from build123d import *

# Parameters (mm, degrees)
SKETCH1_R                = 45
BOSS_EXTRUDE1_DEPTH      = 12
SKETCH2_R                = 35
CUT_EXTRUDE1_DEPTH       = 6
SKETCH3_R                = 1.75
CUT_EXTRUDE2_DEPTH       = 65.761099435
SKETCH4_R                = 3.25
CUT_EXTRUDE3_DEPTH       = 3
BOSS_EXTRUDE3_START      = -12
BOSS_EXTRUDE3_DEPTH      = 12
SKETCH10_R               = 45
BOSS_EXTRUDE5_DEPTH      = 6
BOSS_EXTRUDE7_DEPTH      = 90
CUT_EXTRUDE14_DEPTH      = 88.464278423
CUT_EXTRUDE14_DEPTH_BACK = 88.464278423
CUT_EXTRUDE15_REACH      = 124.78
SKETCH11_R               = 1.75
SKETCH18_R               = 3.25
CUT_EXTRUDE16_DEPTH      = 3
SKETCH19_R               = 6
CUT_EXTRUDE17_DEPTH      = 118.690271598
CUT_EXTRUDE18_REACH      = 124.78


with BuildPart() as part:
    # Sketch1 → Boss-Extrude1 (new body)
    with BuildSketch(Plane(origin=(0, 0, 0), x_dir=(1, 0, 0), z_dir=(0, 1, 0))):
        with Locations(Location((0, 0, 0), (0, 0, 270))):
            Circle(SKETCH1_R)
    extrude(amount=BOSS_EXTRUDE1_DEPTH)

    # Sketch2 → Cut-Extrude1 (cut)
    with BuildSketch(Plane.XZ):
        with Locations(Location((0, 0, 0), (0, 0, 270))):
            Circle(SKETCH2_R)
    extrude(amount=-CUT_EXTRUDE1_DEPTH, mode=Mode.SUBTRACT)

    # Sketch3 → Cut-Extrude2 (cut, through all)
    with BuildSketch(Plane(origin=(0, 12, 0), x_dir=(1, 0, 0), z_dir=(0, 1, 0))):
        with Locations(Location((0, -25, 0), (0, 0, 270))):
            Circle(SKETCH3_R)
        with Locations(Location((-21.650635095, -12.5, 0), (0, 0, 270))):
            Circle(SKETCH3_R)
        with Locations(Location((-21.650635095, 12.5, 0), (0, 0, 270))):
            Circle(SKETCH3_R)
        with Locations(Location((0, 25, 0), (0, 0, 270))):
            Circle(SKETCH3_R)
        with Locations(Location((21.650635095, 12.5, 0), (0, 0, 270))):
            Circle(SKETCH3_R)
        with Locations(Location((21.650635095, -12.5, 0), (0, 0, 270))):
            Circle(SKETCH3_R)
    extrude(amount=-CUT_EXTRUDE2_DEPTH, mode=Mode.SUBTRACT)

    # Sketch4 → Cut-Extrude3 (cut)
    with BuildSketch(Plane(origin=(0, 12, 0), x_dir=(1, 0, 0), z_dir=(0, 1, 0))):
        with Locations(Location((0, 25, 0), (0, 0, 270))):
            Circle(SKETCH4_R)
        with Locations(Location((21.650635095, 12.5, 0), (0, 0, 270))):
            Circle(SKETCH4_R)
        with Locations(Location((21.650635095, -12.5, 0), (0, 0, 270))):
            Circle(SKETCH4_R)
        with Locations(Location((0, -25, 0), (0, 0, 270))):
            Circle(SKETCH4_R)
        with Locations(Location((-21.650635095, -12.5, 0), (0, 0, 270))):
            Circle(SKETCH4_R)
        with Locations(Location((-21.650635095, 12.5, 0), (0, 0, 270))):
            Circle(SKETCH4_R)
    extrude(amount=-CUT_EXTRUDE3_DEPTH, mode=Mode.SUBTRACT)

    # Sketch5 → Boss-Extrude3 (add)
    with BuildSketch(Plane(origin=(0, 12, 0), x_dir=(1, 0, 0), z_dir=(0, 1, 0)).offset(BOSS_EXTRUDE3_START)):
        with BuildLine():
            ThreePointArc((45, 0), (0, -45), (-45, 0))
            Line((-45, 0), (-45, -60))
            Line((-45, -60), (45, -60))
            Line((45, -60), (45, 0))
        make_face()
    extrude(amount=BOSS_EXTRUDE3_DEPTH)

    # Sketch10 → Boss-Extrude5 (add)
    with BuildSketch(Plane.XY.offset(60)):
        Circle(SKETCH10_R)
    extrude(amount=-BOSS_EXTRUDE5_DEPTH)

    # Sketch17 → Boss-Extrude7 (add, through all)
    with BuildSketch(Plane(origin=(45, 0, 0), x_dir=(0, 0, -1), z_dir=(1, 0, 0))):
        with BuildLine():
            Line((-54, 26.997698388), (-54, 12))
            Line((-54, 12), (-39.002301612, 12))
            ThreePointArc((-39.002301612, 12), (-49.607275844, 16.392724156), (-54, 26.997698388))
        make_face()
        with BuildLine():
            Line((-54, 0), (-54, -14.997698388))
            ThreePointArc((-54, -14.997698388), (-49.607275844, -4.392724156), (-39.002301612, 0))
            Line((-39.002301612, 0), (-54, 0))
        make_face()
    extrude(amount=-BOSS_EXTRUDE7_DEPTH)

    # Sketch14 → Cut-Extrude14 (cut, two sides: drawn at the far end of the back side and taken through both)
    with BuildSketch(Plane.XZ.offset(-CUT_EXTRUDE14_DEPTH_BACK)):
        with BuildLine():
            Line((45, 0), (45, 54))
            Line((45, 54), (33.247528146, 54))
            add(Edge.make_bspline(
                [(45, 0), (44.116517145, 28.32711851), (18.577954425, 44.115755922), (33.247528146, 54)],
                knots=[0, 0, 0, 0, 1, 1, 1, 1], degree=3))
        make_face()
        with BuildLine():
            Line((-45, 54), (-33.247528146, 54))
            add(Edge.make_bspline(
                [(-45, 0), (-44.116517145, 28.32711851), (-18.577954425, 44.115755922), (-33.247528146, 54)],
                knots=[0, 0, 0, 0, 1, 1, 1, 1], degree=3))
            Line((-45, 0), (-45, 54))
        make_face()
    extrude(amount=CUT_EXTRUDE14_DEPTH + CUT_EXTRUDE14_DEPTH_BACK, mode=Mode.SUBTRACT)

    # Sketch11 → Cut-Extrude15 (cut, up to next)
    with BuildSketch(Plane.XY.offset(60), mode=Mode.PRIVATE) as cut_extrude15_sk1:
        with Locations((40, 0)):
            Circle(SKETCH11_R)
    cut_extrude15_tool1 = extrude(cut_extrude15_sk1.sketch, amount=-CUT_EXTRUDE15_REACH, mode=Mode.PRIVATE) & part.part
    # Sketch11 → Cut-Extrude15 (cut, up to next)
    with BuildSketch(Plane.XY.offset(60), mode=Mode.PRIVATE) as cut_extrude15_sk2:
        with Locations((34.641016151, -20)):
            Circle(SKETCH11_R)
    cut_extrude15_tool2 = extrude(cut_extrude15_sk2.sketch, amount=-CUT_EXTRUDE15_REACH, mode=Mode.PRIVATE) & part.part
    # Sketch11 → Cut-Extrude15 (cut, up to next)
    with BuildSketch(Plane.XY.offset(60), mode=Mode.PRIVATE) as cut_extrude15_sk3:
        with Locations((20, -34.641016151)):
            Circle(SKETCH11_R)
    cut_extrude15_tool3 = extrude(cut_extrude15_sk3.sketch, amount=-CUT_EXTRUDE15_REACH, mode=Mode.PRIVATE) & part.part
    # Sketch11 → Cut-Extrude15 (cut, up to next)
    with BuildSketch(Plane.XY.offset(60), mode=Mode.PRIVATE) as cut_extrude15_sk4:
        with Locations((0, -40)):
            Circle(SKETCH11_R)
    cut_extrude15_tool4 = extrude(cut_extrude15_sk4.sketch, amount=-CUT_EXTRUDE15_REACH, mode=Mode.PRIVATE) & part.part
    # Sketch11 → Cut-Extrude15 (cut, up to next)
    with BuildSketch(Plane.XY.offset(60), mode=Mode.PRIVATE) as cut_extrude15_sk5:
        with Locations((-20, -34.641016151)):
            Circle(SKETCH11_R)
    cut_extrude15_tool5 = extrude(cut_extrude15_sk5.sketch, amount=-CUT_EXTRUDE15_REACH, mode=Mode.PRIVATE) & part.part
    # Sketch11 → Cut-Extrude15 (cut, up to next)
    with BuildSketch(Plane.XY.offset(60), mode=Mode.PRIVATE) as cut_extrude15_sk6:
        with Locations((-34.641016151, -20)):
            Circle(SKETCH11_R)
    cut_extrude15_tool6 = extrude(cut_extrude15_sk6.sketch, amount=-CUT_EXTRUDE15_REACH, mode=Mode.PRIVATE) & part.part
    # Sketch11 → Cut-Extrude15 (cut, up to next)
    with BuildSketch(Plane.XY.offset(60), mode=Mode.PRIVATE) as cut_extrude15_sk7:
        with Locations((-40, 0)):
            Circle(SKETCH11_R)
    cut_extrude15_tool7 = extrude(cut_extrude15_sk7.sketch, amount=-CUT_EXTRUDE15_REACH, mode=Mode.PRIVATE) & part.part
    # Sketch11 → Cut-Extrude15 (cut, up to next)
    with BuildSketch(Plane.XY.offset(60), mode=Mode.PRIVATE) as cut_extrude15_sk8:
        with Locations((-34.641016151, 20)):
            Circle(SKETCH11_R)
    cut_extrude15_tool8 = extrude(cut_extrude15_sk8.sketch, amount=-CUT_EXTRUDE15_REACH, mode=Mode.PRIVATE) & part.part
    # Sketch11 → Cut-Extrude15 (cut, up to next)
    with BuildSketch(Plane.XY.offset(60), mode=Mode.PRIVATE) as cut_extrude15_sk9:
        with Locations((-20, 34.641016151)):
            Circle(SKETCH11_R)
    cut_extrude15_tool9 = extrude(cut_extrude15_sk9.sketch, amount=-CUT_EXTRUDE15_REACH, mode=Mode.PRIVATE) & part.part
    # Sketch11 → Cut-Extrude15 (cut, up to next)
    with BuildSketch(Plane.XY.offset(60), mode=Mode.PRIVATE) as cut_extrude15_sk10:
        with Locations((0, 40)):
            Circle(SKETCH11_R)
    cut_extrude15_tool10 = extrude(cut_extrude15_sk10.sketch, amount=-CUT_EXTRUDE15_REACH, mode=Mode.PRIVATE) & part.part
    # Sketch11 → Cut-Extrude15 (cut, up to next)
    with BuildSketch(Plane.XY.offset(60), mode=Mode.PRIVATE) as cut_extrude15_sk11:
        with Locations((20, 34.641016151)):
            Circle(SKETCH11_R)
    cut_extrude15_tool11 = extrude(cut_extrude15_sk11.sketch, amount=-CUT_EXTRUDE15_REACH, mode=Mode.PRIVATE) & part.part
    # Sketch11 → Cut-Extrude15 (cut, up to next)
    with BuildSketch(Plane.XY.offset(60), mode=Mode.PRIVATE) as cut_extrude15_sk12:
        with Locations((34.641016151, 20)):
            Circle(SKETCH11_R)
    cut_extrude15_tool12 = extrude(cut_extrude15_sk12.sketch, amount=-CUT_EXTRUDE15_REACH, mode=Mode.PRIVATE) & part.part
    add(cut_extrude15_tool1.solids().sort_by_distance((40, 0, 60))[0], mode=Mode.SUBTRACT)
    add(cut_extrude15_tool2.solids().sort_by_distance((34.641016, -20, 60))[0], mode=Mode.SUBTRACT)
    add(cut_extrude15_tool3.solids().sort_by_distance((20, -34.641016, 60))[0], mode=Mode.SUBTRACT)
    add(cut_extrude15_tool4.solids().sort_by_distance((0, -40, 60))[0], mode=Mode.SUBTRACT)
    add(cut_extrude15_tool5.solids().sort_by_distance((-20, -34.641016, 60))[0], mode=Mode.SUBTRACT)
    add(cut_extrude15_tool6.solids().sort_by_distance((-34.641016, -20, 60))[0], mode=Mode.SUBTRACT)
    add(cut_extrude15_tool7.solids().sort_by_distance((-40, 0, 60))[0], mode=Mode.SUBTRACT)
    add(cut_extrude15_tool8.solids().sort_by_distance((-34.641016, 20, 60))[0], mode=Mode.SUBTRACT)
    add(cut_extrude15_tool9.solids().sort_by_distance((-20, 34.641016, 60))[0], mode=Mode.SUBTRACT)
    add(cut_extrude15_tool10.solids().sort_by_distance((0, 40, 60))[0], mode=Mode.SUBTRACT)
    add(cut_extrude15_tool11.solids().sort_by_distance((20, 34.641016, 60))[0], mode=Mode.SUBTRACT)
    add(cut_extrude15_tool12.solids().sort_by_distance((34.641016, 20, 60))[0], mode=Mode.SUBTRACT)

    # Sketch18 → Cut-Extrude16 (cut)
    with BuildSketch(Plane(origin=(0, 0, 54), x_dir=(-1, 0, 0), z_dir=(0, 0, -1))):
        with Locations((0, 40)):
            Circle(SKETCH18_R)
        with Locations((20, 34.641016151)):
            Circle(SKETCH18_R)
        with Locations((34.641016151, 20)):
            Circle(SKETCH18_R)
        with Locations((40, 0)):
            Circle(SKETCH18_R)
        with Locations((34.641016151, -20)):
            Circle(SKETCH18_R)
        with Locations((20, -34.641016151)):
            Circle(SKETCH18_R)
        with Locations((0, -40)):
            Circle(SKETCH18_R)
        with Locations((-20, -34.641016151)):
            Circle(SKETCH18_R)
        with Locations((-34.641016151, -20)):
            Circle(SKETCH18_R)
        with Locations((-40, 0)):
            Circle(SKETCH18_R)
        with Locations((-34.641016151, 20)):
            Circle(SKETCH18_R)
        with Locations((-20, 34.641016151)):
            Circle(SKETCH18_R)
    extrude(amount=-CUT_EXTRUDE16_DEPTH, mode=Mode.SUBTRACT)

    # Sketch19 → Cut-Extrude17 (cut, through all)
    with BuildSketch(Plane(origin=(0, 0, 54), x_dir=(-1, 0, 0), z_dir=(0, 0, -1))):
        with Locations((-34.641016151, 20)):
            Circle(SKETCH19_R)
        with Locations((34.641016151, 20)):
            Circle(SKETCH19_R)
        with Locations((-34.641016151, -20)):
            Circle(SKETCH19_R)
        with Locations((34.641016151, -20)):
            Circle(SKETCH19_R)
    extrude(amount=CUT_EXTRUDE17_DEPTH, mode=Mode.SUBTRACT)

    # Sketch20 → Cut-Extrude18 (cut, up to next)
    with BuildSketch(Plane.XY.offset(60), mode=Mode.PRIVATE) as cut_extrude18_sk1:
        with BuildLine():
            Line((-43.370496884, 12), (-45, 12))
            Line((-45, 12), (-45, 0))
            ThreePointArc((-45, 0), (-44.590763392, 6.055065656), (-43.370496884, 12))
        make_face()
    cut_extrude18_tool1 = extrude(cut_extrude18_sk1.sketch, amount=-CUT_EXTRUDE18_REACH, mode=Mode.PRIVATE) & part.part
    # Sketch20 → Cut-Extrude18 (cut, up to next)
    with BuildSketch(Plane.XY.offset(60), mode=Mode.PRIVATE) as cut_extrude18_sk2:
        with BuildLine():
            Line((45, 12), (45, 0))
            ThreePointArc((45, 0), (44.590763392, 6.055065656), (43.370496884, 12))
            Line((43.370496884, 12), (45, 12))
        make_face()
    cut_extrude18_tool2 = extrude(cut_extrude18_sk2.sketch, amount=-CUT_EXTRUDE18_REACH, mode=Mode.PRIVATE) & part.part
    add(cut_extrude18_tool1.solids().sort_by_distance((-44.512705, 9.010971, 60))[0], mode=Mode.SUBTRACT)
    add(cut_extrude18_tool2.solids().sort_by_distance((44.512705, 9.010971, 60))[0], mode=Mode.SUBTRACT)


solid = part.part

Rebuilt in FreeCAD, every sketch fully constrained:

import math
import FreeCAD as App
import Part
import Sketcher
Q = App.Units.Quantity

doc = App.newDocument("Part")
params = doc.addObject("Spreadsheet::Sheet", "Params")
for row, (alias, value) in enumerate([
    ("sketch1_diameter", "90 mm"),
    ("pad1_length", "12 mm"),
    ("sketch2_diameter", "70 mm"),
    ("pocket1_length", "6 mm"),
    ("sketch3_diameter", "3.5 mm"),
    ("sketch4_diameter", "6.5 mm"),
    ("pocket3_length", "3 mm"),
    ("sketch5_radius", "45 mm"),
    ("sketch5_height", "60 mm"),
    ("pad2_length", "12 mm"),
    ("sketch6_diameter", "90 mm"),
    ("pad3_length", "6 mm"),
    ("sketch9_diameter", "3.5 mm"),
    ("sketch10_diameter", "3.5 mm"),
    ("sketch11_diameter", "3.5 mm"),
    ("sketch12_diameter", "3.5 mm"),
    ("sketch13_diameter", "3.5 mm"),
    ("sketch14_diameter", "3.5 mm"),
    ("sketch15_diameter", "3.5 mm"),
    ("sketch16_diameter", "3.5 mm"),
    ("sketch17_diameter", "3.5 mm"),
    ("sketch18_diameter", "3.5 mm"),
    ("sketch19_diameter", "3.5 mm"),
    ("sketch20_diameter", "3.5 mm"),
    ("sketch21_diameter", "6.5 mm"),
    ("pocket17_length", "3 mm"),
    ("sketch22_diameter", "12 mm"),
    ("sketch23_radius", "45 mm"),
    ("sketch23_height", "12 mm"),
    ("sketch24_radius", "45 mm"),
    ("sketch24_height", "12 mm"),
], start=1):
    params.set(f"A{row}", alias)
    params.set(f"B{row}", "=" + value)
    params.setAlias(f"B{row}", alias)

body = doc.addObject("PartDesign::Body", "Body")

# Sketch on XZ plane
sketch1 = body.newObject("Sketcher::SketchObject", "Sketch")
sketch1.AttachmentSupport = (doc.getObject("XZ_Plane"), [""])
sketch1.MapMode = "FlatFace"
sketch1.addGeometry(Part.Circle(App.Vector(0, 0, 0), App.Vector(0, 0, 1), 45), False)
sketch1.addConstraint(Sketcher.Constraint("Coincident", 0, 3, -1, 1))
sketch1.addConstraint(Sketcher.Constraint("Diameter", 0, Q("90 mm")))
sketch1.setExpression("Constraints[1]", "Params.sketch1_diameter")
pad1 = body.newObject("PartDesign::Pad", "Pad")
pad1.Profile = sketch1
pad1.setExpression("Length", "Params.pad1_length")
pad1.Reversed = True

# Sketch on XZ plane
sketch2 = body.newObject("Sketcher::SketchObject", "Sketch001")
sketch2.AttachmentSupport = (doc.getObject("XZ_Plane"), [""])
sketch2.MapMode = "FlatFace"
sketch2.addGeometry(Part.Circle(App.Vector(0, 0, 0), App.Vector(0, 0, 1), 35), False)
sketch2.addConstraint(Sketcher.Constraint("Coincident", 0, 3, -1, 1))
sketch2.addConstraint(Sketcher.Constraint("Diameter", 0, Q("70 mm")))
sketch2.setExpression("Constraints[1]", "Params.sketch2_diameter")
pocket1 = body.newObject("PartDesign::Pocket", "Pocket")
pocket1.Profile = sketch2
pocket1.setExpression("Length", "Params.pocket1_length")

# Sketch on XZ plane
sketch3 = body.newObject("Sketcher::SketchObject", "Sketch002")
sketch3.AttachmentSupport = (doc.getObject("XZ_Plane"), [""])
sketch3.MapMode = "FlatFace"
sketch3.AttachmentOffset = App.Placement(App.Vector(0, 0, -12), App.Rotation())
sketch3.addGeometry(Part.Circle(App.Vector(0, 25, 0), App.Vector(0, 0, 1), 1.75), False)
sketch3.addGeometry(Part.Circle(App.Vector(-21.650635, 12.5, 0), App.Vector(0, 0, 1), 1.75), False)
sketch3.addGeometry(Part.Circle(App.Vector(-21.650635, -12.5, 0), App.Vector(0, 0, 1), 1.75), False)
sketch3.addGeometry(Part.Circle(App.Vector(0, -25, 0), App.Vector(0, 0, 1), 1.75), False)
sketch3.addGeometry(Part.Circle(App.Vector(21.650635, -12.5, 0), App.Vector(0, 0, 1), 1.75), False)
sketch3.addGeometry(Part.Circle(App.Vector(21.650635, 12.5, 0), App.Vector(0, 0, 1), 1.75), False)
sketch3.addConstraint(Sketcher.Constraint("Equal", 0, 1))
sketch3.addConstraint(Sketcher.Constraint("Equal", 1, 2))
sketch3.addConstraint(Sketcher.Constraint("Equal", 2, 3))
sketch3.addConstraint(Sketcher.Constraint("Equal", 3, 4))
sketch3.addConstraint(Sketcher.Constraint("Equal", 4, 5))
sketch3.addConstraint(Sketcher.Constraint("Symmetric", 0, 3, 3, 3, -1, 1))
sketch3.addConstraint(Sketcher.Constraint("Symmetric", 1, 3, 4, 3, -1, 1))
sketch3.addConstraint(Sketcher.Constraint("Symmetric", 2, 3, 5, 3, -1, 1))
sketch3.addConstraint(Sketcher.Constraint("Symmetric", 2, 3, 4, 3, -2))
sketch3.addConstraint(Sketcher.Constraint("PointOnObject", 0, 3, -2))
sketch3.addConstraint(Sketcher.Constraint("Diameter", 0, Q("3.5 mm")))
sketch3.addConstraint(Sketcher.Constraint("DistanceY", -1, 1, 0, 3, Q("25 mm")))
sketch3.addConstraint(Sketcher.Constraint("DistanceY", 2, 3, 1, 3, Q("25 mm")))
sketch3.addConstraint(Sketcher.Constraint("DistanceX", 2, 3, 4, 3, Q("43.30127 mm")))
sketch3.setExpression("Constraints[10]", "Params.sketch3_diameter")
pocket2 = body.newObject("PartDesign::Pocket", "Pocket001")
pocket2.Profile = sketch3
pocket2.Type = "ThroughAll"
pocket2.Reversed = True

# Sketch on XZ plane
sketch4 = body.newObject("Sketcher::SketchObject", "Sketch003")
sketch4.AttachmentSupport = (doc.getObject("XZ_Plane"), [""])
sketch4.MapMode = "FlatFace"
sketch4.AttachmentOffset = App.Placement(App.Vector(0, 0, -12), App.Rotation())
sketch4.addGeometry(Part.Circle(App.Vector(0, -25, 0), App.Vector(0, 0, 1), 3.25), False)
sketch4.addGeometry(Part.Circle(App.Vector(21.650635, -12.5, 0), App.Vector(0, 0, 1), 3.25), False)
sketch4.addGeometry(Part.Circle(App.Vector(21.650635, 12.5, 0), App.Vector(0, 0, 1), 3.25), False)
sketch4.addGeometry(Part.Circle(App.Vector(0, 25, 0), App.Vector(0, 0, 1), 3.25), False)
sketch4.addGeometry(Part.Circle(App.Vector(-21.650635, 12.5, 0), App.Vector(0, 0, 1), 3.25), False)
sketch4.addGeometry(Part.Circle(App.Vector(-21.650635, -12.5, 0), App.Vector(0, 0, 1), 3.25), False)
sketch4.addConstraint(Sketcher.Constraint("Equal", 0, 1))
sketch4.addConstraint(Sketcher.Constraint("Equal", 1, 2))
sketch4.addConstraint(Sketcher.Constraint("Equal", 2, 3))
sketch4.addConstraint(Sketcher.Constraint("Equal", 3, 4))
sketch4.addConstraint(Sketcher.Constraint("Equal", 4, 5))
sketch4.addConstraint(Sketcher.Constraint("Symmetric", 0, 3, 3, 3, -1, 1))
sketch4.addConstraint(Sketcher.Constraint("Symmetric", 1, 3, 4, 3, -1, 1))
sketch4.addConstraint(Sketcher.Constraint("Symmetric", 2, 3, 5, 3, -1, 1))
sketch4.addConstraint(Sketcher.Constraint("Symmetric", 2, 3, 4, 3, -2))
sketch4.addConstraint(Sketcher.Constraint("PointOnObject", 0, 3, -2))
sketch4.addConstraint(Sketcher.Constraint("Diameter", 0, Q("6.5 mm")))
sketch4.addConstraint(Sketcher.Constraint("DistanceY", 0, 3, -1, 1, Q("25 mm")))
sketch4.addConstraint(Sketcher.Constraint("DistanceY", 1, 3, 2, 3, Q("25 mm")))
sketch4.addConstraint(Sketcher.Constraint("DistanceX", 4, 3, 2, 3, Q("43.30127 mm")))
sketch4.setExpression("Constraints[10]", "Params.sketch4_diameter")
pocket3 = body.newObject("PartDesign::Pocket", "Pocket002")
pocket3.Profile = sketch4
pocket3.setExpression("Length", "Params.pocket3_length")
pocket3.Reversed = True

# Sketch on XZ plane
sketch5 = body.newObject("Sketcher::SketchObject", "Sketch004")
sketch5.AttachmentSupport = (doc.getObject("XZ_Plane"), [""])
sketch5.MapMode = "FlatFace"
sketch5.addGeometry(Part.ArcOfCircle(Part.Circle(App.Vector(0, 0, 0), App.Vector(0, 0, 1), 45), math.radians(0), math.radians(180)), False)
sketch5.addGeometry(Part.LineSegment(App.Vector(-45, 0, 0), App.Vector(-45, 60, 0)), False)
sketch5.addGeometry(Part.LineSegment(App.Vector(-45, 60, 0), App.Vector(45, 60, 0)), False)
sketch5.addGeometry(Part.LineSegment(App.Vector(45, 60, 0), App.Vector(45, 0, 0)), False)
sketch5.addConstraint(Sketcher.Constraint("Tangent", 0, 2, 1, 1))
sketch5.addConstraint(Sketcher.Constraint("Coincident", 1, 2, 2, 1))
sketch5.addConstraint(Sketcher.Constraint("Coincident", 2, 2, 3, 1))
sketch5.addConstraint(Sketcher.Constraint("Tangent", 3, 2, 0, 1))
sketch5.addConstraint(Sketcher.Constraint("Vertical", 1))
sketch5.addConstraint(Sketcher.Constraint("Horizontal", 2))
sketch5.addConstraint(Sketcher.Constraint("Vertical", 3))
sketch5.addConstraint(Sketcher.Constraint("Coincident", 0, 3, -1, 1))
sketch5.addConstraint(Sketcher.Constraint("Radius", 0, Q("45 mm")))
sketch5.addConstraint(Sketcher.Constraint("DistanceY", 1, 1, 1, 2, Q("60 mm")))
sketch5.setExpression("Constraints[8]", "Params.sketch5_radius")
sketch5.setExpression("Constraints[9]", "Params.sketch5_height")
pad2 = body.newObject("PartDesign::Pad", "Pad001")
pad2.Profile = sketch5
pad2.setExpression("Length", "Params.pad2_length")
pad2.Reversed = True

# Sketch on XY plane
sketch6 = body.newObject("Sketcher::SketchObject", "Sketch005")
sketch6.AttachmentSupport = (doc.getObject("XY_Plane"), [""])
sketch6.MapMode = "FlatFace"
sketch6.AttachmentOffset = App.Placement(App.Vector(0, 0, 60), App.Rotation())
sketch6.addGeometry(Part.Circle(App.Vector(0, 0, 0), App.Vector(0, 0, 1), 45), False)
sketch6.addConstraint(Sketcher.Constraint("Coincident", 0, 3, -1, 1))
sketch6.addConstraint(Sketcher.Constraint("Diameter", 0, Q("90 mm")))
sketch6.setExpression("Constraints[1]", "Params.sketch6_diameter")
pad3 = body.newObject("PartDesign::Pad", "Pad002")
pad3.Profile = sketch6
pad3.setExpression("Length", "Params.pad3_length")
pad3.Reversed = True

# Sketch on YZ plane
sketch7 = body.newObject("Sketcher::SketchObject", "Sketch006")
sketch7.AttachmentSupport = (doc.getObject("YZ_Plane"), [""])
sketch7.MapMode = "FlatFace"
sketch7.AttachmentOffset = App.Placement(App.Vector(0, 0, 45), App.Rotation())
sketch7.addGeometry(Part.LineSegment(App.Vector(26.997698, 54, 0), App.Vector(12, 54, 0)), False)
sketch7.addGeometry(Part.LineSegment(App.Vector(12, 54, 0), App.Vector(12, 39.002302, 0)), False)
sketch7.addGeometry(Part.ArcOfCircle(Part.Circle(App.Vector(26.997698, 39.002302, 0), App.Vector(0, 0, 1), 14.997698), math.radians(90), math.radians(180)), False)
sketch7.addGeometry(Part.LineSegment(App.Vector(0, 54, 0), App.Vector(-14.997698, 54, 0)), False)
sketch7.addGeometry(Part.ArcOfCircle(Part.Circle(App.Vector(-14.997698, 39.002302, 0), App.Vector(0, 0, 1), 14.997698), math.radians(0), math.radians(90)), False)
sketch7.addGeometry(Part.LineSegment(App.Vector(0, 39.002302, 0), App.Vector(0, 54, 0)), False)
sketch7.addConstraint(Sketcher.Constraint("Coincident", 0, 2, 1, 1))
sketch7.addConstraint(Sketcher.Constraint("Tangent", 1, 2, 2, 2))
sketch7.addConstraint(Sketcher.Constraint("Tangent", 2, 1, 0, 1))
sketch7.addConstraint(Sketcher.Constraint("Tangent", 3, 2, 4, 2))
sketch7.addConstraint(Sketcher.Constraint("Tangent", 4, 1, 5, 1))
sketch7.addConstraint(Sketcher.Constraint("Coincident", 5, 2, 3, 1))
sketch7.addConstraint(Sketcher.Constraint("Horizontal", 0))
sketch7.addConstraint(Sketcher.Constraint("Vertical", 1))
sketch7.addConstraint(Sketcher.Constraint("Horizontal", 3))
sketch7.addConstraint(Sketcher.Constraint("Vertical", 5))
sketch7.addConstraint(Sketcher.Constraint("Equal", 2, 4))
sketch7.addConstraint(Sketcher.Constraint("PointOnObject", 4, 1, -2))
sketch7.addConstraint(Sketcher.Constraint("Horizontal", 2, 3, 4, 3))
sketch7.addConstraint(Sketcher.Constraint("DistanceX", -1, 1, 0, 2, Q("12 mm")))
sketch7.addConstraint(Sketcher.Constraint("DistanceY", -1, 1, 0, 2, Q("54 mm")))
sketch7.addConstraint(Sketcher.Constraint("Radius", 2, Q("14.997698 mm")))
pad4 = body.newObject("PartDesign::Pad", "Pad003")
pad4.Profile = sketch7
pad4.Type = "UpToLast"
pad4.Reversed = True

# Sketch on XZ plane
sketch8 = body.newObject("Sketcher::SketchObject", "Sketch007")
sketch8.AttachmentSupport = (doc.getObject("XZ_Plane"), [""])
sketch8.MapMode = "FlatFace"
sketch8.addGeometry(Part.LineSegment(App.Vector(45, 0, 0), App.Vector(45, 54, 0)), False)
sketch8.addGeometry(Part.LineSegment(App.Vector(45, 54, 0), App.Vector(33.247528, 54, 0)), False)
sketch8.addGeometry(Part.BSplineCurve([App.Vector(45, 0, 0), App.Vector(44.116517, 28.327119, 0), App.Vector(18.577954, 44.115756, 0), App.Vector(33.247528, 54, 0)], [4, 4], [0, 1], False, 3, [1, 1, 1, 1], False), False)
sketch8.addGeometry(Part.LineSegment(App.Vector(-33.247528, 54, 0), App.Vector(-45, 54, 0)), False)
sketch8.addGeometry(Part.LineSegment(App.Vector(-45, 54, 0), App.Vector(-45, 0, 0)), False)
sketch8.addGeometry(Part.BSplineCurve([App.Vector(-45, 0, 0), App.Vector(-44.116517, 28.327119, 0), App.Vector(-18.577954, 44.115756, 0), App.Vector(-33.247528, 54, 0)], [4, 4], [0, 1], False, 3, [1, 1, 1, 1], False), False)
sketch8.addConstraint(Sketcher.Constraint("Block", 2))
sketch8.addConstraint(Sketcher.Constraint("Block", 5))
sketch8.addConstraint(Sketcher.Constraint("Coincident", 0, 2, 1, 1))
sketch8.addConstraint(Sketcher.Constraint("Coincident", 1, 2, 2, 2))
sketch8.addConstraint(Sketcher.Constraint("Coincident", 2, 1, 0, 1))
sketch8.addConstraint(Sketcher.Constraint("Coincident", 3, 2, 4, 1))
sketch8.addConstraint(Sketcher.Constraint("Coincident", 4, 2, 5, 1))
sketch8.addConstraint(Sketcher.Constraint("Coincident", 5, 2, 3, 1))
sketch8.addConstraint(Sketcher.Constraint("Vertical", 0))
sketch8.addConstraint(Sketcher.Constraint("Horizontal", 1))
sketch8.addConstraint(Sketcher.Constraint("Horizontal", 3))
sketch8.addConstraint(Sketcher.Constraint("Vertical", 4))
pocket4 = body.newObject("PartDesign::Pocket", "Pocket003")
pocket4.Profile = sketch8
pocket4.Type = "ThroughAll"
pocket4.Midplane = True

# Sketch on XY plane
sketch9 = body.newObject("Sketcher::SketchObject", "Sketch008")
sketch9.AttachmentSupport = (doc.getObject("XY_Plane"), [""])
sketch9.MapMode = "FlatFace"
sketch9.AttachmentOffset = App.Placement(App.Vector(0, 0, 60), App.Rotation())
sketch9.addGeometry(Part.Circle(App.Vector(40, 0, 0), App.Vector(0, 0, 1), 1.75), False)
sketch9.addConstraint(Sketcher.Constraint("PointOnObject", 0, 3, -1))
sketch9.addConstraint(Sketcher.Constraint("Diameter", 0, Q("3.5 mm")))
sketch9.addConstraint(Sketcher.Constraint("DistanceX", -1, 1, 0, 3, Q("40 mm")))
sketch9.setExpression("Constraints[1]", "Params.sketch9_diameter")
pocket5 = body.newObject("PartDesign::Pocket", "Pocket004")
pocket5.Profile = sketch9
pocket5.Type = "UpToFirst"

# Sketch on XY plane
sketch10 = body.newObject("Sketcher::SketchObject", "Sketch009")
sketch10.AttachmentSupport = (doc.getObject("XY_Plane"), [""])
sketch10.MapMode = "FlatFace"
sketch10.AttachmentOffset = App.Placement(App.Vector(0, 0, 60), App.Rotation())
sketch10.addGeometry(Part.Circle(App.Vector(34.641016, -20, 0), App.Vector(0, 0, 1), 1.75), False)
sketch10.addConstraint(Sketcher.Constraint("Diameter", 0, Q("3.5 mm")))
sketch10.addConstraint(Sketcher.Constraint("DistanceY", 0, 3, -1, 1, Q("20 mm")))
sketch10.addConstraint(Sketcher.Constraint("DistanceX", -1, 1, 0, 3, Q("34.641016 mm")))
sketch10.setExpression("Constraints[0]", "Params.sketch10_diameter")
pocket6 = body.newObject("PartDesign::Pocket", "Pocket005")
pocket6.Profile = sketch10
pocket6.Type = "UpToFirst"

# Sketch on XY plane
sketch11 = body.newObject("Sketcher::SketchObject", "Sketch010")
sketch11.AttachmentSupport = (doc.getObject("XY_Plane"), [""])
sketch11.MapMode = "FlatFace"
sketch11.AttachmentOffset = App.Placement(App.Vector(0, 0, 60), App.Rotation())
sketch11.addGeometry(Part.Circle(App.Vector(20, -34.641016, 0), App.Vector(0, 0, 1), 1.75), False)
sketch11.addConstraint(Sketcher.Constraint("Diameter", 0, Q("3.5 mm")))
sketch11.addConstraint(Sketcher.Constraint("DistanceX", -1, 1, 0, 3, Q("20 mm")))
sketch11.addConstraint(Sketcher.Constraint("DistanceY", 0, 3, -1, 1, Q("34.641016 mm")))
sketch11.setExpression("Constraints[0]", "Params.sketch11_diameter")
pocket7 = body.newObject("PartDesign::Pocket", "Pocket006")
pocket7.Profile = sketch11
pocket7.Type = "UpToFirst"

# Sketch on XY plane
sketch12 = body.newObject("Sketcher::SketchObject", "Sketch011")
sketch12.AttachmentSupport = (doc.getObject("XY_Plane"), [""])
sketch12.MapMode = "FlatFace"
sketch12.AttachmentOffset = App.Placement(App.Vector(0, 0, 60), App.Rotation())
sketch12.addGeometry(Part.Circle(App.Vector(0, -40, 0), App.Vector(0, 0, 1), 1.75), False)
sketch12.addConstraint(Sketcher.Constraint("PointOnObject", 0, 3, -2))
sketch12.addConstraint(Sketcher.Constraint("Diameter", 0, Q("3.5 mm")))
sketch12.addConstraint(Sketcher.Constraint("DistanceY", 0, 3, -1, 1, Q("40 mm")))
sketch12.setExpression("Constraints[1]", "Params.sketch12_diameter")
pocket8 = body.newObject("PartDesign::Pocket", "Pocket007")
pocket8.Profile = sketch12
pocket8.Type = "UpToFirst"

# Sketch on XY plane
sketch13 = body.newObject("Sketcher::SketchObject", "Sketch012")
sketch13.AttachmentSupport = (doc.getObject("XY_Plane"), [""])
sketch13.MapMode = "FlatFace"
sketch13.AttachmentOffset = App.Placement(App.Vector(0, 0, 60), App.Rotation())
sketch13.addGeometry(Part.Circle(App.Vector(-20, -34.641016, 0), App.Vector(0, 0, 1), 1.75), False)
sketch13.addConstraint(Sketcher.Constraint("Diameter", 0, Q("3.5 mm")))
sketch13.addConstraint(Sketcher.Constraint("DistanceX", 0, 3, -1, 1, Q("20 mm")))
sketch13.addConstraint(Sketcher.Constraint("DistanceY", 0, 3, -1, 1, Q("34.641016 mm")))
sketch13.setExpression("Constraints[0]", "Params.sketch13_diameter")
pocket9 = body.newObject("PartDesign::Pocket", "Pocket008")
pocket9.Profile = sketch13
pocket9.Type = "UpToFirst"

# Sketch on XY plane
sketch14 = body.newObject("Sketcher::SketchObject", "Sketch013")
sketch14.AttachmentSupport = (doc.getObject("XY_Plane"), [""])
sketch14.MapMode = "FlatFace"
sketch14.AttachmentOffset = App.Placement(App.Vector(0, 0, 60), App.Rotation())
sketch14.addGeometry(Part.Circle(App.Vector(-34.641016, -20, 0), App.Vector(0, 0, 1), 1.75), False)
sketch14.addConstraint(Sketcher.Constraint("Diameter", 0, Q("3.5 mm")))
sketch14.addConstraint(Sketcher.Constraint("DistanceY", 0, 3, -1, 1, Q("20 mm")))
sketch14.addConstraint(Sketcher.Constraint("DistanceX", 0, 3, -1, 1, Q("34.641016 mm")))
sketch14.setExpression("Constraints[0]", "Params.sketch14_diameter")
pocket10 = body.newObject("PartDesign::Pocket", "Pocket009")
pocket10.Profile = sketch14
pocket10.Type = "UpToFirst"

# Sketch on XY plane
sketch15 = body.newObject("Sketcher::SketchObject", "Sketch014")
sketch15.AttachmentSupport = (doc.getObject("XY_Plane"), [""])
sketch15.MapMode = "FlatFace"
sketch15.AttachmentOffset = App.Placement(App.Vector(0, 0, 60), App.Rotation())
sketch15.addGeometry(Part.Circle(App.Vector(-40, 0, 0), App.Vector(0, 0, 1), 1.75), False)
sketch15.addConstraint(Sketcher.Constraint("PointOnObject", 0, 3, -1))
sketch15.addConstraint(Sketcher.Constraint("Diameter", 0, Q("3.5 mm")))
sketch15.addConstraint(Sketcher.Constraint("DistanceX", 0, 3, -1, 1, Q("40 mm")))
sketch15.setExpression("Constraints[1]", "Params.sketch15_diameter")
pocket11 = body.newObject("PartDesign::Pocket", "Pocket010")
pocket11.Profile = sketch15
pocket11.Type = "UpToFirst"

# Sketch on XY plane
sketch16 = body.newObject("Sketcher::SketchObject", "Sketch015")
sketch16.AttachmentSupport = (doc.getObject("XY_Plane"), [""])
sketch16.MapMode = "FlatFace"
sketch16.AttachmentOffset = App.Placement(App.Vector(0, 0, 60), App.Rotation())
sketch16.addGeometry(Part.Circle(App.Vector(-34.641016, 20, 0), App.Vector(0, 0, 1), 1.75), False)
sketch16.addConstraint(Sketcher.Constraint("Diameter", 0, Q("3.5 mm")))
sketch16.addConstraint(Sketcher.Constraint("DistanceY", -1, 1, 0, 3, Q("20 mm")))
sketch16.addConstraint(Sketcher.Constraint("DistanceX", 0, 3, -1, 1, Q("34.641016 mm")))
sketch16.setExpression("Constraints[0]", "Params.sketch16_diameter")
pocket12 = body.newObject("PartDesign::Pocket", "Pocket011")
pocket12.Profile = sketch16
pocket12.Type = "UpToFirst"

# Sketch on XY plane
sketch17 = body.newObject("Sketcher::SketchObject", "Sketch016")
sketch17.AttachmentSupport = (doc.getObject("XY_Plane"), [""])
sketch17.MapMode = "FlatFace"
sketch17.AttachmentOffset = App.Placement(App.Vector(0, 0, 60), App.Rotation())
sketch17.addGeometry(Part.Circle(App.Vector(-20, 34.641016, 0), App.Vector(0, 0, 1), 1.75), False)
sketch17.addConstraint(Sketcher.Constraint("Diameter", 0, Q("3.5 mm")))
sketch17.addConstraint(Sketcher.Constraint("DistanceX", 0, 3, -1, 1, Q("20 mm")))
sketch17.addConstraint(Sketcher.Constraint("DistanceY", -1, 1, 0, 3, Q("34.641016 mm")))
sketch17.setExpression("Constraints[0]", "Params.sketch17_diameter")
pocket13 = body.newObject("PartDesign::Pocket", "Pocket012")
pocket13.Profile = sketch17
pocket13.Type = "UpToFirst"

# Sketch on XY plane
sketch18 = body.newObject("Sketcher::SketchObject", "Sketch017")
sketch18.AttachmentSupport = (doc.getObject("XY_Plane"), [""])
sketch18.MapMode = "FlatFace"
sketch18.AttachmentOffset = App.Placement(App.Vector(0, 0, 60), App.Rotation())
sketch18.addGeometry(Part.Circle(App.Vector(0, 40, 0), App.Vector(0, 0, 1), 1.75), False)
sketch18.addConstraint(Sketcher.Constraint("PointOnObject", 0, 3, -2))
sketch18.addConstraint(Sketcher.Constraint("Diameter", 0, Q("3.5 mm")))
sketch18.addConstraint(Sketcher.Constraint("DistanceY", -1, 1, 0, 3, Q("40 mm")))
sketch18.setExpression("Constraints[1]", "Params.sketch18_diameter")
pocket14 = body.newObject("PartDesign::Pocket", "Pocket013")
pocket14.Profile = sketch18
pocket14.Type = "UpToFirst"

# Sketch on XY plane
sketch19 = body.newObject("Sketcher::SketchObject", "Sketch018")
sketch19.AttachmentSupport = (doc.getObject("XY_Plane"), [""])
sketch19.MapMode = "FlatFace"
sketch19.AttachmentOffset = App.Placement(App.Vector(0, 0, 60), App.Rotation())
sketch19.addGeometry(Part.Circle(App.Vector(20, 34.641016, 0), App.Vector(0, 0, 1), 1.75), False)
sketch19.addConstraint(Sketcher.Constraint("Diameter", 0, Q("3.5 mm")))
sketch19.addConstraint(Sketcher.Constraint("DistanceX", -1, 1, 0, 3, Q("20 mm")))
sketch19.addConstraint(Sketcher.Constraint("DistanceY", -1, 1, 0, 3, Q("34.641016 mm")))
sketch19.setExpression("Constraints[0]", "Params.sketch19_diameter")
pocket15 = body.newObject("PartDesign::Pocket", "Pocket014")
pocket15.Profile = sketch19
pocket15.Type = "UpToFirst"

# Sketch on XY plane
sketch20 = body.newObject("Sketcher::SketchObject", "Sketch019")
sketch20.AttachmentSupport = (doc.getObject("XY_Plane"), [""])
sketch20.MapMode = "FlatFace"
sketch20.AttachmentOffset = App.Placement(App.Vector(0, 0, 60), App.Rotation())
sketch20.addGeometry(Part.Circle(App.Vector(34.641016, 20, 0), App.Vector(0, 0, 1), 1.75), False)
sketch20.addConstraint(Sketcher.Constraint("Diameter", 0, Q("3.5 mm")))
sketch20.addConstraint(Sketcher.Constraint("DistanceY", -1, 1, 0, 3, Q("20 mm")))
sketch20.addConstraint(Sketcher.Constraint("DistanceX", -1, 1, 0, 3, Q("34.641016 mm")))
sketch20.setExpression("Constraints[0]", "Params.sketch20_diameter")
pocket16 = body.newObject("PartDesign::Pocket", "Pocket015")
pocket16.Profile = sketch20
pocket16.Type = "UpToFirst"

# Sketch on XY plane
sketch21 = body.newObject("Sketcher::SketchObject", "Sketch020")
sketch21.AttachmentSupport = (doc.getObject("XY_Plane"), [""])
sketch21.MapMode = "FlatFace"
sketch21.AttachmentOffset = App.Placement(App.Vector(0, 0, 54), App.Rotation())
sketch21.addGeometry(Part.Circle(App.Vector(0, 40, 0), App.Vector(0, 0, 1), 3.25), False)
sketch21.addGeometry(Part.Circle(App.Vector(-20, 34.641016, 0), App.Vector(0, 0, 1), 3.25), False)
sketch21.addGeometry(Part.Circle(App.Vector(-34.641016, 20, 0), App.Vector(0, 0, 1), 3.25), False)
sketch21.addGeometry(Part.Circle(App.Vector(-40, 0, 0), App.Vector(0, 0, 1), 3.25), False)
sketch21.addGeometry(Part.Circle(App.Vector(-34.641016, -20, 0), App.Vector(0, 0, 1), 3.25), False)
sketch21.addGeometry(Part.Circle(App.Vector(-20, -34.641016, 0), App.Vector(0, 0, 1), 3.25), False)
sketch21.addGeometry(Part.Circle(App.Vector(0, -40, 0), App.Vector(0, 0, 1), 3.25), False)
sketch21.addGeometry(Part.Circle(App.Vector(20, -34.641016, 0), App.Vector(0, 0, 1), 3.25), False)
sketch21.addGeometry(Part.Circle(App.Vector(34.641016, -20, 0), App.Vector(0, 0, 1), 3.25), False)
sketch21.addGeometry(Part.Circle(App.Vector(40, 0, 0), App.Vector(0, 0, 1), 3.25), False)
sketch21.addGeometry(Part.Circle(App.Vector(34.641016, 20, 0), App.Vector(0, 0, 1), 3.25), False)
sketch21.addGeometry(Part.Circle(App.Vector(20, 34.641016, 0), App.Vector(0, 0, 1), 3.25), False)
sketch21.addConstraint(Sketcher.Constraint("Equal", 0, 1))
sketch21.addConstraint(Sketcher.Constraint("Equal", 1, 2))
sketch21.addConstraint(Sketcher.Constraint("Equal", 2, 3))
sketch21.addConstraint(Sketcher.Constraint("Equal", 3, 4))
sketch21.addConstraint(Sketcher.Constraint("Equal", 4, 5))
sketch21.addConstraint(Sketcher.Constraint("Equal", 5, 6))
sketch21.addConstraint(Sketcher.Constraint("Equal", 6, 7))
sketch21.addConstraint(Sketcher.Constraint("Equal", 7, 8))
sketch21.addConstraint(Sketcher.Constraint("Equal", 8, 9))
sketch21.addConstraint(Sketcher.Constraint("Equal", 9, 10))
sketch21.addConstraint(Sketcher.Constraint("Equal", 10, 11))
sketch21.addConstraint(Sketcher.Constraint("Symmetric", 0, 3, 6, 3, -1, 1))
sketch21.addConstraint(Sketcher.Constraint("Symmetric", 1, 3, 7, 3, -1, 1))
sketch21.addConstraint(Sketcher.Constraint("Symmetric", 2, 3, 8, 3, -1, 1))
sketch21.addConstraint(Sketcher.Constraint("Symmetric", 3, 3, 9, 3, -1, 1))
sketch21.addConstraint(Sketcher.Constraint("Symmetric", 4, 3, 10, 3, -1, 1))
sketch21.addConstraint(Sketcher.Constraint("Symmetric", 5, 3, 11, 3, -1, 1))
sketch21.addConstraint(Sketcher.Constraint("Symmetric", 5, 3, 7, 3, -2))
sketch21.addConstraint(Sketcher.Constraint("Symmetric", 4, 3, 8, 3, -2))
sketch21.addConstraint(Sketcher.Constraint("PointOnObject", 0, 3, -2))
sketch21.addConstraint(Sketcher.Constraint("PointOnObject", 3, 3, -1))
sketch21.addConstraint(Sketcher.Constraint("Diameter", 0, Q("6.5 mm")))
sketch21.addConstraint(Sketcher.Constraint("DistanceY", -1, 1, 0, 3, Q("40 mm")))
sketch21.addConstraint(Sketcher.Constraint("DistanceX", 1, 3, -1, 1, Q("20 mm")))
sketch21.addConstraint(Sketcher.Constraint("DistanceY", -1, 1, 2, 3, Q("20 mm")))
sketch21.addConstraint(Sketcher.Constraint("DistanceX", 3, 3, -1, 1, Q("40 mm")))
sketch21.addConstraint(Sketcher.Constraint("DistanceY", -1, 1, 1, 3, Q("34.641016 mm")))
sketch21.addConstraint(Sketcher.Constraint("DistanceX", 2, 3, -1, 1, Q("34.641016 mm")))
sketch21.setExpression("Constraints[21]", "Params.sketch21_diameter")
pocket17 = body.newObject("PartDesign::Pocket", "Pocket016")
pocket17.Profile = sketch21
pocket17.setExpression("Length", "Params.pocket17_length")
pocket17.Reversed = True

# Sketch on XY plane
sketch22 = body.newObject("Sketcher::SketchObject", "Sketch021")
sketch22.AttachmentSupport = (doc.getObject("XY_Plane"), [""])
sketch22.MapMode = "FlatFace"
sketch22.AttachmentOffset = App.Placement(App.Vector(0, 0, 54), App.Rotation())
sketch22.addGeometry(Part.Circle(App.Vector(34.641016, 20, 0), App.Vector(0, 0, 1), 6), False)
sketch22.addGeometry(Part.Circle(App.Vector(-34.641016, 20, 0), App.Vector(0, 0, 1), 6), False)
sketch22.addGeometry(Part.Circle(App.Vector(34.641016, -20, 0), App.Vector(0, 0, 1), 6), False)
sketch22.addGeometry(Part.Circle(App.Vector(-34.641016, -20, 0), App.Vector(0, 0, 1), 6), False)
sketch22.addConstraint(Sketcher.Constraint("Equal", 0, 1))
sketch22.addConstraint(Sketcher.Constraint("Equal", 1, 2))
sketch22.addConstraint(Sketcher.Constraint("Equal", 2, 3))
sketch22.addConstraint(Sketcher.Constraint("Symmetric", 1, 3, 2, 3, -1, 1))
sketch22.addConstraint(Sketcher.Constraint("Symmetric", 0, 3, 3, 3, -1, 1))
sketch22.addConstraint(Sketcher.Constraint("Symmetric", 0, 3, 1, 3, -2))
sketch22.addConstraint(Sketcher.Constraint("Diameter", 0, Q("12 mm")))
sketch22.addConstraint(Sketcher.Constraint("DistanceY", -1, 1, 0, 3, Q("20 mm")))
sketch22.addConstraint(Sketcher.Constraint("DistanceX", -1, 1, 0, 3, Q("34.641016 mm")))
sketch22.setExpression("Constraints[6]", "Params.sketch22_diameter")
pocket18 = body.newObject("PartDesign::Pocket", "Pocket017")
pocket18.Profile = sketch22
pocket18.Type = "ThroughAll"

# Sketch on XY plane
sketch23 = body.newObject("Sketcher::SketchObject", "Sketch022")
sketch23.AttachmentSupport = (doc.getObject("XY_Plane"), [""])
sketch23.MapMode = "FlatFace"
sketch23.AttachmentOffset = App.Placement(App.Vector(0, 0, 60), App.Rotation())
sketch23.addGeometry(Part.LineSegment(App.Vector(-43.370497, 12, 0), App.Vector(-45, 12, 0)), False)
sketch23.addGeometry(Part.LineSegment(App.Vector(-45, 12, 0), App.Vector(-45, 0, 0)), False)
sketch23.addGeometry(Part.ArcOfCircle(Part.Circle(App.Vector(0, 0, 0), App.Vector(0, 0, 1), 45), math.radians(164.53399), math.radians(180)), False)
sketch23.addConstraint(Sketcher.Constraint("Coincident", 0, 2, 1, 1))
sketch23.addConstraint(Sketcher.Constraint("Tangent", 1, 2, 2, 2))
sketch23.addConstraint(Sketcher.Constraint("Coincident", 2, 1, 0, 1))
sketch23.addConstraint(Sketcher.Constraint("Horizontal", 0))
sketch23.addConstraint(Sketcher.Constraint("Vertical", 1))
sketch23.addConstraint(Sketcher.Constraint("Coincident", 2, 3, -1, 1))
sketch23.addConstraint(Sketcher.Constraint("Radius", 2, Q("45 mm")))
sketch23.addConstraint(Sketcher.Constraint("DistanceY", 1, 2, 1, 1, Q("12 mm")))
sketch23.setExpression("Constraints[6]", "Params.sketch23_radius")
sketch23.setExpression("Constraints[7]", "Params.sketch23_height")
pocket19 = body.newObject("PartDesign::Pocket", "Pocket018")
pocket19.Profile = sketch23
pocket19.Type = "UpToFirst"

# Sketch on XY plane
sketch24 = body.newObject("Sketcher::SketchObject", "Sketch023")
sketch24.AttachmentSupport = (doc.getObject("XY_Plane"), [""])
sketch24.MapMode = "FlatFace"
sketch24.AttachmentOffset = App.Placement(App.Vector(0, 0, 60), App.Rotation())
sketch24.addGeometry(Part.LineSegment(App.Vector(45, 0, 0), App.Vector(45, 12, 0)), False)
sketch24.addGeometry(Part.LineSegment(App.Vector(45, 12, 0), App.Vector(43.370497, 12, 0)), False)
sketch24.addGeometry(Part.ArcOfCircle(Part.Circle(App.Vector(0, 0, 0), App.Vector(0, 0, 1), 45), math.radians(0), math.radians(15.46601)), False)
sketch24.addConstraint(Sketcher.Constraint("Coincident", 0, 2, 1, 1))
sketch24.addConstraint(Sketcher.Constraint("Coincident", 1, 2, 2, 2))
sketch24.addConstraint(Sketcher.Constraint("Tangent", 2, 1, 0, 1))
sketch24.addConstraint(Sketcher.Constraint("Vertical", 0))
sketch24.addConstraint(Sketcher.Constraint("Horizontal", 1))
sketch24.addConstraint(Sketcher.Constraint("Coincident", 2, 3, -1, 1))
sketch24.addConstraint(Sketcher.Constraint("Radius", 2, Q("45 mm")))
sketch24.addConstraint(Sketcher.Constraint("DistanceY", 0, 1, 0, 2, Q("12 mm")))
sketch24.setExpression("Constraints[6]", "Params.sketch24_radius")
sketch24.setExpression("Constraints[7]", "Params.sketch24_height")
pocket20 = body.newObject("PartDesign::Pocket", "Pocket019")
pocket20.Profile = sketch24
pocket20.Type = "UpToFirst"

doc.recompute()
